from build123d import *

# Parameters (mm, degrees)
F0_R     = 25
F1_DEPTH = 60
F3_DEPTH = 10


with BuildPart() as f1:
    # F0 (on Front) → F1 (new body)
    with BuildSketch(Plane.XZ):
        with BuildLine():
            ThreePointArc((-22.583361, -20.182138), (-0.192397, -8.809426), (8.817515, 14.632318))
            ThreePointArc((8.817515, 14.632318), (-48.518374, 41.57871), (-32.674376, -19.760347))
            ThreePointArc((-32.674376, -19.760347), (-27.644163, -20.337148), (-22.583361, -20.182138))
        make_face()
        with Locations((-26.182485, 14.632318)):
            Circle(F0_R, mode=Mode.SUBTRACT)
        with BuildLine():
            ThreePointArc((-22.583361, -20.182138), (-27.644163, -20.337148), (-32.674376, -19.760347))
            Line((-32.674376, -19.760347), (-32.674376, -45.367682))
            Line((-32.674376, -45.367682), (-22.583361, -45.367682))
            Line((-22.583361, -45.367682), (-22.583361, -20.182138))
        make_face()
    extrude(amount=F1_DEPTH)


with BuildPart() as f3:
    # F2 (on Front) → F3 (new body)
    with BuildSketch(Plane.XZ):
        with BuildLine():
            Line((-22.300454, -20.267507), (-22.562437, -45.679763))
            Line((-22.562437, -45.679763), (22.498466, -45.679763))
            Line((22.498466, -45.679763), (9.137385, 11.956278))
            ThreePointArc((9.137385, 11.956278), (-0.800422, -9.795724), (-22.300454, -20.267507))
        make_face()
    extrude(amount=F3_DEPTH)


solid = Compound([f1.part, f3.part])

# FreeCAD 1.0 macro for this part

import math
import FreeCAD as App
import Part
import Sketcher

V = App.Vector
Q = App.Units.Quantity

doc = App.newDocument("Part")
body = doc.addObject("PartDesign::Body", "Body")

# Sketch on XZ plane
sketch1 = doc.addObject("Sketcher::SketchObject", "Sketch")
body.addObject(sketch1)
sketch1.AttachmentSupport = (doc.XZ_Plane, [""])
sketch1.MapMode = "FlatFace"
sketch1.addGeometry([
    Part.ArcOfCircle(Part.Circle(V(-26.182485, 14.632317, 0), V(0, 0, 1), 35), math.radians(-84.097721), math.radians(0.000001)),  # 0
    Part.ArcOfCircle(Part.Circle(V(-26.182485, 14.632317, 0), V(0, 0, 1), 35), math.radians(0.000001), math.radians(259.31073)),  # 1
    Part.LineSegment(V(-32.674376, -19.760347, 0), V(-32.674376, -45.367682, 0)),  # 2
    Part.LineSegment(V(-32.674376, -45.367682, 0), V(-22.583361, -45.367682, 0)),  # 3
    Part.LineSegment(V(-22.583361, -45.367682, 0), V(-22.583361, -20.182138, 0)),  # 4
    Part.Circle(V(-26.182485, 14.632318, 0), V(0, 0, 1), 25),  # 5
], False)
sketch1.addConstraint([
    Sketcher.Constraint("Tangent", 0, 2, 1, 1),
    Sketcher.Constraint("Coincident", 1, 2, 2, 1),
    Sketcher.Constraint("Coincident", 2, 2, 3, 1),
    Sketcher.Constraint("Coincident", 3, 2, 4, 1),
    Sketcher.Constraint("Coincident", 4, 2, 0, 1),
    Sketcher.Constraint("Vertical", 2),
    Sketcher.Constraint("Horizontal", 3),
    Sketcher.Constraint("Vertical", 4),
    Sketcher.Constraint("Coincident", 5, 3, 0, 3),
    Sketcher.Constraint("Equal", 0, 1),
    Sketcher.Constraint("Horizontal", 5, 3, 0, 2),
    Sketcher.Constraint("Diameter", 5, Q("50 mm")),
    Sketcher.Constraint("Radius", 0, Q("35 mm")),
    Sketcher.Constraint("DistanceY", 2, 2, 0, 3, Q("59.999999 mm")),
    Sketcher.Constraint("DistanceX", 3, 1, 3, 2, Q("10.091015 mm")),
    Sketcher.Constraint("DistanceY", 2, 2, 2, 1, Q("25.607335 mm")),
    Sketcher.Constraint("DistanceX", 3, 2, -1, 1, Q("22.583361 mm")),
    Sketcher.Constraint("DistanceY", -1, 1, 0, 3, Q("14.632317 mm")),
])
pad1 = doc.addObject("PartDesign::Pad", "Pad")
body.addObject(pad1)
pad1.Profile = sketch1
pad1.Length = 60
body2 = doc.addObject("PartDesign::Body", "Body001")

# Sketch on XZ plane
sketch2 = doc.addObject("Sketcher::SketchObject", "Sketch001")
body2.addObject(sketch2)
sketch2.AttachmentSupport = (doc.getObject("XZ_Plane001"), [""])
sketch2.MapMode = "FlatFace"
sketch2.addGeometry([
    Part.LineSegment(V(-22.300454, -20.267507, 0), V(-22.562437, -45.679763, 0)),
    Part.LineSegment(V(-22.562437, -45.679763, 0), V(22.498466, -45.679763, 0)),
    Part.LineSegment(V(22.498466, -45.679763, 0), V(9.137385, 11.956278, 0)),
    Part.ArcOfCircle(Part.Circle(V(-26.142806, 14.928553, 0), V(0, 0, 1), 35.405173), math.radians(-83.769695), math.radians(-4.815666)),
], False)
sketch2.addConstraint([
    Sketcher.Constraint("Coincident", 0, 2, 1, 1),
    Sketcher.Constraint("Coincident", 1, 2, 2, 1),
    Sketcher.Constraint("Coincident", 2, 2, 3, 2),
    Sketcher.Constraint("Coincident", 3, 1, 0, 1),
    Sketcher.Constraint("Horizontal", 1),
    Sketcher.Constraint("Radius", 3, Q("35.405173 mm")),
    Sketcher.Constraint("DistanceX", 1, 1, 1, 2, Q("45.060903 mm")),
    Sketcher.Constraint("DistanceX", 3, 3, 0, 2, Q("3.580369 mm")),
    Sketcher.Constraint("DistanceX", 3, 3, 2, 2, Q("35.280191 mm")),
    Sketcher.Constraint("DistanceY", 1, 2, 2, 2, Q("57.636041 mm")),
    Sketcher.Constraint("DistanceY", 3, 1, 3, 3, Q("35.19606 mm")),
    Sketcher.Constraint("DistanceX", 3, 3, -1, 1, Q("26.142806 mm")),
    Sketcher.Constraint("DistanceY", -1, 1, 3, 3, Q("14.928553 mm")),
])
pad2 = doc.addObject("PartDesign::Pad", "Pad001")
body2.addObject(pad2)
pad2.Profile = sketch2
pad2.Length = 10

doc.recompute()
